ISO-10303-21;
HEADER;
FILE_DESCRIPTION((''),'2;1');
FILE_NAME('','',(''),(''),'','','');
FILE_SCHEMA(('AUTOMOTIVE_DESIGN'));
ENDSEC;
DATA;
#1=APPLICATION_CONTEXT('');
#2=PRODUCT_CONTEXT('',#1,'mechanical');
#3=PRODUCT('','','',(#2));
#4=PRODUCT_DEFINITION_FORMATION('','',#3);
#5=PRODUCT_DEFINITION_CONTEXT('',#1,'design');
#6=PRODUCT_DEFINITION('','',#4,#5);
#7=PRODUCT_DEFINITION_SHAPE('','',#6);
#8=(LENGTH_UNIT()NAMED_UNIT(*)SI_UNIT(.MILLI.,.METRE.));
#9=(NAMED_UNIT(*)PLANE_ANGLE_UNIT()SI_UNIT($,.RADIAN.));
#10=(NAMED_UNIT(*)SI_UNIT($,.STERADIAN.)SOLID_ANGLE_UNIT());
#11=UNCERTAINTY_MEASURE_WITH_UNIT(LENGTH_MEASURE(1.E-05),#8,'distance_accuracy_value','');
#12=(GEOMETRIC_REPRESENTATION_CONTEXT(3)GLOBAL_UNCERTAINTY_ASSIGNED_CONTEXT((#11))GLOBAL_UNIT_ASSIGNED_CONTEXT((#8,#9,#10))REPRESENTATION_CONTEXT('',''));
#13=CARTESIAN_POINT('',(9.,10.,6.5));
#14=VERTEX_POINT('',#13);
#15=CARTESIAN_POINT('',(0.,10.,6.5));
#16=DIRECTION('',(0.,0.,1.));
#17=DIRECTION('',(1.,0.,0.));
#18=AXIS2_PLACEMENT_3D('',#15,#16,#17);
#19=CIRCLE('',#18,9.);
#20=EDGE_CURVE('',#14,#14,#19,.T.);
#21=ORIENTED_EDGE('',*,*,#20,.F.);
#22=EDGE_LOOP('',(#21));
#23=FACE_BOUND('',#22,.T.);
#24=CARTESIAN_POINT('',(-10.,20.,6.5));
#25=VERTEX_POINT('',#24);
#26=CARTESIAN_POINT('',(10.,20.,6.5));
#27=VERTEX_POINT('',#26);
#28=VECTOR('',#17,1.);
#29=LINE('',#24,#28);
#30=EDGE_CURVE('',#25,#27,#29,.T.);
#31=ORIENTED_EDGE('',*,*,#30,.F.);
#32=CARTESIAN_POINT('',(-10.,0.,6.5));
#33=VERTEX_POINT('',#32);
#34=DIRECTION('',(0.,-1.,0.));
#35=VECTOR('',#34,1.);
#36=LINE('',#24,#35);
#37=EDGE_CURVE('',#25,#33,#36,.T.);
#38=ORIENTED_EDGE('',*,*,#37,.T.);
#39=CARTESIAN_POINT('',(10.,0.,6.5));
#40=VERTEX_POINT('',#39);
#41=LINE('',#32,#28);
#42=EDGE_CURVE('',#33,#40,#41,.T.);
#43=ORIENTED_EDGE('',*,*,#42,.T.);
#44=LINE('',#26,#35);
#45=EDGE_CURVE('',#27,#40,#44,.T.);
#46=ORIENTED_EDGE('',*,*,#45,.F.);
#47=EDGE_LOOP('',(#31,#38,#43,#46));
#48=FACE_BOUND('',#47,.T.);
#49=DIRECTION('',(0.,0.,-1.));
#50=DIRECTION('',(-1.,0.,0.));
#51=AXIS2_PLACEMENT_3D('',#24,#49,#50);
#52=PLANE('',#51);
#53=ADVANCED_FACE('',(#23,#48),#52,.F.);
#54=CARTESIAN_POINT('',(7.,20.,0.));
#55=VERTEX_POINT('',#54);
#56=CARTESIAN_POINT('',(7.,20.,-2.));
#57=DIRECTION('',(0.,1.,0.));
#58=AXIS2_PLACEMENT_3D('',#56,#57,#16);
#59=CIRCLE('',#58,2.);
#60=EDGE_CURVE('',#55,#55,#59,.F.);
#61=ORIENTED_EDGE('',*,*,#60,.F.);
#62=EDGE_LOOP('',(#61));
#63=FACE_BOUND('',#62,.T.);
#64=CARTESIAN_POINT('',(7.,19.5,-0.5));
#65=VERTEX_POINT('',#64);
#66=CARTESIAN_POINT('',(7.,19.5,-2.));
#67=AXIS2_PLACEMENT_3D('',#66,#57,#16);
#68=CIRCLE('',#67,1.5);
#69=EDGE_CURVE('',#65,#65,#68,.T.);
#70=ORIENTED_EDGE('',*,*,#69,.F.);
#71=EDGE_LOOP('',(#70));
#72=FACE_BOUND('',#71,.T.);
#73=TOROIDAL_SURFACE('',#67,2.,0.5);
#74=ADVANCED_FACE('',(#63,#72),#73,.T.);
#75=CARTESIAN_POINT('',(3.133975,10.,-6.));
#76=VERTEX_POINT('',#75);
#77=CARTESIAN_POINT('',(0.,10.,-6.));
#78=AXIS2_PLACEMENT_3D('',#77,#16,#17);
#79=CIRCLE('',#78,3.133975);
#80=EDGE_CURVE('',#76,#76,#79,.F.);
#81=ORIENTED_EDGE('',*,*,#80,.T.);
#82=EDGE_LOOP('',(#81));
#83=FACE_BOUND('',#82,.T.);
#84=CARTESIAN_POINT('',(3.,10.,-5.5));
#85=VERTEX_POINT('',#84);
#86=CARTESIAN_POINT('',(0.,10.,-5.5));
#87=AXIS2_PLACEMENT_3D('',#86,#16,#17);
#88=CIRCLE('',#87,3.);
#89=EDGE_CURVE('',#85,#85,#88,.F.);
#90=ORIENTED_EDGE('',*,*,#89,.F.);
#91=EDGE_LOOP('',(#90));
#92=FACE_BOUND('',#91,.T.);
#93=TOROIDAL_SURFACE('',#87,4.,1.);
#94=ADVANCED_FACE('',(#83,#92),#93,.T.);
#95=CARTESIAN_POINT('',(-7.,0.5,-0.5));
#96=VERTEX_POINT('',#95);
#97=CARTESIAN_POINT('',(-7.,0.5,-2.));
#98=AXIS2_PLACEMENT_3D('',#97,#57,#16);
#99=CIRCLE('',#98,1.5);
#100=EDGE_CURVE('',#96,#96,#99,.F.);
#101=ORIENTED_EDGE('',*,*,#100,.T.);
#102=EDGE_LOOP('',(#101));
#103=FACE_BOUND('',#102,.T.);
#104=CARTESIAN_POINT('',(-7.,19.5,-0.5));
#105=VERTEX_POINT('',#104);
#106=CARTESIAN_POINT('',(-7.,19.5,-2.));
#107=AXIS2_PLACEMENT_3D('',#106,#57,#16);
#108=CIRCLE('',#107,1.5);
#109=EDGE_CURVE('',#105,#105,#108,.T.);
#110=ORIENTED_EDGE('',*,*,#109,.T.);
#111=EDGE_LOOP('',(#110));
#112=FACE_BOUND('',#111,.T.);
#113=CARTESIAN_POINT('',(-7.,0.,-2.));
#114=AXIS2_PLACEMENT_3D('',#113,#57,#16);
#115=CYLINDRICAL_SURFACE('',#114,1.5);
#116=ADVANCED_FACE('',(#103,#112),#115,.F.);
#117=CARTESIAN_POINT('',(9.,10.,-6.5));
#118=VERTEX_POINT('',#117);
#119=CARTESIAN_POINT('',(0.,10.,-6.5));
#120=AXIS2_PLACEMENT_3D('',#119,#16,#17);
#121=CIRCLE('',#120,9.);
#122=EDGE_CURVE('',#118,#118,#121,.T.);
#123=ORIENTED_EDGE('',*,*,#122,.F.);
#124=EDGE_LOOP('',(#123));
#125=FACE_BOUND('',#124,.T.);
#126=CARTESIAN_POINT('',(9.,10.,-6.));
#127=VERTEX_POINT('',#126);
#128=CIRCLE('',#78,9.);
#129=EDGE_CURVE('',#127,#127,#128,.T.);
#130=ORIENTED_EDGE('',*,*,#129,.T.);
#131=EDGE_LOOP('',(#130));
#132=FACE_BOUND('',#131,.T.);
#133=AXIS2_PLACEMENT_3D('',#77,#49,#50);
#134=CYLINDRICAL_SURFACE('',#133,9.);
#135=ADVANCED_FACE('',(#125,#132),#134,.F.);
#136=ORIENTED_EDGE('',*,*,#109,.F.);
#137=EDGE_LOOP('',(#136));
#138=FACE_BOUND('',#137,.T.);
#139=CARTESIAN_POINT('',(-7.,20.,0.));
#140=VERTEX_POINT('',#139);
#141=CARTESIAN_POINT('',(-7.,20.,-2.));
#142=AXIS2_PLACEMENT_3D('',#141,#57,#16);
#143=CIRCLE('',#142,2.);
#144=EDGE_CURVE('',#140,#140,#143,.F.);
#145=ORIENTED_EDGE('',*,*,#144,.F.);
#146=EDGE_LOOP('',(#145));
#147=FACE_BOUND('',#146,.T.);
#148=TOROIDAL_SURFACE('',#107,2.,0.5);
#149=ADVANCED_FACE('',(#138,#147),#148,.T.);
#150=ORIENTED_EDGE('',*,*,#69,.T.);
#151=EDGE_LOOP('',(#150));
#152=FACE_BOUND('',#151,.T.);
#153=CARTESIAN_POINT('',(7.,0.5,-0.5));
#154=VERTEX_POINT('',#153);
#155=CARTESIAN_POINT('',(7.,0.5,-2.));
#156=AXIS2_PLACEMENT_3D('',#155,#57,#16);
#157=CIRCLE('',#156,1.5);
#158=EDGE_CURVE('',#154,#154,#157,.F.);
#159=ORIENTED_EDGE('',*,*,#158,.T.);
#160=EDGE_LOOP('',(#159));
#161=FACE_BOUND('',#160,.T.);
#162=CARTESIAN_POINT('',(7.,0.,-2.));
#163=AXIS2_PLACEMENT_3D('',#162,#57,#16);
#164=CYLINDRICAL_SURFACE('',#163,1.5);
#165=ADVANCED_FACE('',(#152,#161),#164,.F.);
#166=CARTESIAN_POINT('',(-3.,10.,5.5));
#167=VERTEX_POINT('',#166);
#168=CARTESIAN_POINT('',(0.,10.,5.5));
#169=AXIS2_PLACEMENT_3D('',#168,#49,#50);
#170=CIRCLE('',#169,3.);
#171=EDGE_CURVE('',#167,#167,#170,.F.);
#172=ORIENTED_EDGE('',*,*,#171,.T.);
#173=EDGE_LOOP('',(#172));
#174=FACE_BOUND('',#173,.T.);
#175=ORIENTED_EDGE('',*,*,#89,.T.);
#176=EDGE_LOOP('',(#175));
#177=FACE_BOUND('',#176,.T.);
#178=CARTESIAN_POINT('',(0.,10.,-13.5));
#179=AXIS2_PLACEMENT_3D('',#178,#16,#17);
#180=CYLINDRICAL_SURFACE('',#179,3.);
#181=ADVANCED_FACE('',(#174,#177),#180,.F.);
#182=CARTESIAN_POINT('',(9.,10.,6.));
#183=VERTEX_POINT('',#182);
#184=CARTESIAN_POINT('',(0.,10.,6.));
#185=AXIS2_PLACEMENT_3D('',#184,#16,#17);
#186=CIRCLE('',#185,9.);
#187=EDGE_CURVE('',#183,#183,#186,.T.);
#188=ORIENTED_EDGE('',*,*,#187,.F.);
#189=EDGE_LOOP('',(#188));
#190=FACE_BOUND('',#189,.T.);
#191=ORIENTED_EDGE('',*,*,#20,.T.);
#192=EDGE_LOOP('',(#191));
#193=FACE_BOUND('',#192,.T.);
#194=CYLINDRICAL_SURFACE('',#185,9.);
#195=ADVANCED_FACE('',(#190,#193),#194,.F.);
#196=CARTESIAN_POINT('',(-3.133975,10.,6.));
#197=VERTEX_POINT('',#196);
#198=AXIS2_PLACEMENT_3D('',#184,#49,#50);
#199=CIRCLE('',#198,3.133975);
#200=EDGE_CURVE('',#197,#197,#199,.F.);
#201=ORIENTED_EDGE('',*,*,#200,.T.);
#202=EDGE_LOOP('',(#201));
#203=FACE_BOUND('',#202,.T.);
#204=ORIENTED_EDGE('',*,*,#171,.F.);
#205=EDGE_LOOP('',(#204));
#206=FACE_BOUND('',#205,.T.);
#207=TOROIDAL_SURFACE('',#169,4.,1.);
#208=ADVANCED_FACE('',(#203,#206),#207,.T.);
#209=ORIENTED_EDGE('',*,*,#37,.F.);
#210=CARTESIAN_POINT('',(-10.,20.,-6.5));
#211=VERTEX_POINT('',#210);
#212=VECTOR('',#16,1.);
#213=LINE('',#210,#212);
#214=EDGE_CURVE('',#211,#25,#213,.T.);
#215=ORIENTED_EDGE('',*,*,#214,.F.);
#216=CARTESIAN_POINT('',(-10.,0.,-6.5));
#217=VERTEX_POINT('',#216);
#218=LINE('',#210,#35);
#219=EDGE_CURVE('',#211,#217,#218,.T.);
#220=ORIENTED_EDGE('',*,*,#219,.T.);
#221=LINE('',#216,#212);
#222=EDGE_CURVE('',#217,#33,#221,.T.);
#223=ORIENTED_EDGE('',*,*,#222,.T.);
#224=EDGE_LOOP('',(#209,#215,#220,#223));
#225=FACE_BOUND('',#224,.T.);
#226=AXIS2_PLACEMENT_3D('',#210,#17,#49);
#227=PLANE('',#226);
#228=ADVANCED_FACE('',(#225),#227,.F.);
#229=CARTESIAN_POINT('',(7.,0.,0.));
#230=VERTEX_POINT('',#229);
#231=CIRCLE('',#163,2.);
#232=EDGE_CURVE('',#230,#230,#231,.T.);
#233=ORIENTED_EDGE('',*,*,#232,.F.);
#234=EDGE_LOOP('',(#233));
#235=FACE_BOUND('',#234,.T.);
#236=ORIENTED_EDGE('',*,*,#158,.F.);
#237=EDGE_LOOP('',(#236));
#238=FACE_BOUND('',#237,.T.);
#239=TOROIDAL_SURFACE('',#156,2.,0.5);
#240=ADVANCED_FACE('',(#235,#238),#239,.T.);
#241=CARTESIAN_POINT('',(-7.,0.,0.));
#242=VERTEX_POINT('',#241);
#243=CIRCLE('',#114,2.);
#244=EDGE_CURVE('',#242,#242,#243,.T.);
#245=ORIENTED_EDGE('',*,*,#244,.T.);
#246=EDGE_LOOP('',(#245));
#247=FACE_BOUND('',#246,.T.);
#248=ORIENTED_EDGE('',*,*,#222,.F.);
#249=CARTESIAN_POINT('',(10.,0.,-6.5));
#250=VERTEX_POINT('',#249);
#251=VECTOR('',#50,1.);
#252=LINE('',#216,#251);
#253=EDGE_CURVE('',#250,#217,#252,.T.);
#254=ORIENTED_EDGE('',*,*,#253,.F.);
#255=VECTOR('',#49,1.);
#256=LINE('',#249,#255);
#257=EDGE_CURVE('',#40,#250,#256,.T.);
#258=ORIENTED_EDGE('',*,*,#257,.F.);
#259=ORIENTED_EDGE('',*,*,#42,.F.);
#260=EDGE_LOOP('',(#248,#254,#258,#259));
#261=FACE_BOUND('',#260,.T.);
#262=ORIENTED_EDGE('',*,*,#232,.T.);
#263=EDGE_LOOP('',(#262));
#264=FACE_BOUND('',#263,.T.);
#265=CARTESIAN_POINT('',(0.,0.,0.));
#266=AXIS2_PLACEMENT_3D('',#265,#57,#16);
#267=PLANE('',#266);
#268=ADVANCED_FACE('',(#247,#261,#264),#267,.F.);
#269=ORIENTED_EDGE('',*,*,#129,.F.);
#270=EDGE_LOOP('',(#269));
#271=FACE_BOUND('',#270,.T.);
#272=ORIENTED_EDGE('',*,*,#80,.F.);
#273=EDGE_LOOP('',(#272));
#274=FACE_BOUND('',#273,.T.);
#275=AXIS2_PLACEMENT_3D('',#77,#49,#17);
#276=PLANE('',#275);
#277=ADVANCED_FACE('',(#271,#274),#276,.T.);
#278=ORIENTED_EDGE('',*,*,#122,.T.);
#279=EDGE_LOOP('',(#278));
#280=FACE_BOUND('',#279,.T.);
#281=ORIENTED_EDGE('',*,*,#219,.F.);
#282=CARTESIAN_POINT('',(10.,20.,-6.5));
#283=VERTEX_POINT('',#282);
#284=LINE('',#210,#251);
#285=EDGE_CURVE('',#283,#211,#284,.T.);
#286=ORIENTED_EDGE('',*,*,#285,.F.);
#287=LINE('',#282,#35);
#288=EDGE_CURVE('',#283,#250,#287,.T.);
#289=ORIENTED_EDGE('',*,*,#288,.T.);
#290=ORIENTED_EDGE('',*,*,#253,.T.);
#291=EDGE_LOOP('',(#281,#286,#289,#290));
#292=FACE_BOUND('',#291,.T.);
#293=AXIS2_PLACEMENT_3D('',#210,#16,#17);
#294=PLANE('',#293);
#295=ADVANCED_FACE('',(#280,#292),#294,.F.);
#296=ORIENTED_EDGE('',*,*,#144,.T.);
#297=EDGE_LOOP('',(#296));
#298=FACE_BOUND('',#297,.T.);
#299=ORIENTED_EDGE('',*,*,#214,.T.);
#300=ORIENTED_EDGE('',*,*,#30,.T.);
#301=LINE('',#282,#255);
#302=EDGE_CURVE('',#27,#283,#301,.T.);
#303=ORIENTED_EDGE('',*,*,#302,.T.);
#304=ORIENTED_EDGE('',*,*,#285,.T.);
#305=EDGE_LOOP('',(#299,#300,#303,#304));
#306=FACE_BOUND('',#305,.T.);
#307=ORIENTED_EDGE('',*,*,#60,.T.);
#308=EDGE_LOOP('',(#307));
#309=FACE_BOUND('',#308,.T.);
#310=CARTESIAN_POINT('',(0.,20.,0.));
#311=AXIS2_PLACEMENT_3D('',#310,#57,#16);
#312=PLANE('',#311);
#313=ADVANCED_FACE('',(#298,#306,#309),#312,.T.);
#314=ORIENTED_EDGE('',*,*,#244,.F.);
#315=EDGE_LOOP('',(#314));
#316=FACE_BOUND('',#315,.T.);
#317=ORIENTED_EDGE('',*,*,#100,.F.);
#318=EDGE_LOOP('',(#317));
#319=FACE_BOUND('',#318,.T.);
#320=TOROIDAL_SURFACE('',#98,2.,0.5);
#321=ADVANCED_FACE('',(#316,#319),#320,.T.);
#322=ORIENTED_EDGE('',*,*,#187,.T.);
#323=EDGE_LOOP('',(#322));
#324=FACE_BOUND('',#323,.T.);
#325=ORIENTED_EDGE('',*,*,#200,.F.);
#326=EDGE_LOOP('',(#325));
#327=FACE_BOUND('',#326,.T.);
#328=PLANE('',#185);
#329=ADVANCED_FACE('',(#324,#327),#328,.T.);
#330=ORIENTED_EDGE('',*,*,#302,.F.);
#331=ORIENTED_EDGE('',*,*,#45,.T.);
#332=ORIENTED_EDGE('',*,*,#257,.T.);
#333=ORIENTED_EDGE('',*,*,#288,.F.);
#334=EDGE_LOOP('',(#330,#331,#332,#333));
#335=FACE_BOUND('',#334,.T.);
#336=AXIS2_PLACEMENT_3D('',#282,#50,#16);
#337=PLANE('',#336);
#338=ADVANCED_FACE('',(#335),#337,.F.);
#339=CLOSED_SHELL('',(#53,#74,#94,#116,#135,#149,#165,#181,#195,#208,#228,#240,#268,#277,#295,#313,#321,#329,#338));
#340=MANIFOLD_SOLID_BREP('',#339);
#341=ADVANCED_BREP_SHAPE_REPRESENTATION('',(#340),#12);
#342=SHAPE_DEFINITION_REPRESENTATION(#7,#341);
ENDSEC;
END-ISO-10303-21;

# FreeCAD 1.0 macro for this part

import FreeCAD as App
import Part
import Sketcher

V = App.Vector
Q = App.Units.Quantity


def edges_at(feature, points):
    """Names of the edges that pass closest to the given points."""
    edges = feature.Shape.Edges
    near = lambda p: min(range(len(edges)), key=lambda i: edges[i].distToShape(Part.Vertex(*p))[0])
    return sorted({f"Edge{near(p) + 1}" for p in points})

doc = App.newDocument("Part")
body = doc.addObject("PartDesign::Body", "Body")

# Sketch on XZ plane
sketch1 = body.newObject("Sketcher::SketchObject", "Sketch")
sketch1.AttachmentSupport = (doc.getObject("XZ_Plane"), [""])
sketch1.MapMode = "FlatFace"
sketch1.addGeometry([
    Part.LineSegment(V(-10, -6.5, 0), V(-10, 6.5, 0)),
    Part.LineSegment(V(-10, 6.5, 0), V(10, 6.5, 0)),
    Part.LineSegment(V(10, 6.5, 0), V(10, -6.5, 0)),
    Part.LineSegment(V(10, -6.5, 0), V(-10, -6.5, 0)),
], False)
sketch1.addConstraint([
    Sketcher.Constraint("Coincident", 0, 2, 1, 1),
    Sketcher.Constraint("Coincident", 1, 2, 2, 1),
    Sketcher.Constraint("Coincident", 2, 2, 3, 1),
    Sketcher.Constraint("Coincident", 3, 2, 0, 1),
    Sketcher.Constraint("Vertical", 0),
    Sketcher.Constraint("Horizontal", 1),
    Sketcher.Constraint("Vertical", 2),
    Sketcher.Constraint("Horizontal", 3),
    Sketcher.Constraint("Symmetric", 0, 2, 2, 2, -1, 1),
    Sketcher.Constraint("DistanceX", 1, 1, 1, 2, Q("20 mm")),
    Sketcher.Constraint("DistanceY", 0, 1, 0, 2, Q("13 mm")),
])
pad1 = body.newObject("PartDesign::Pad", "Pad")
pad1.Profile = sketch1
pad1.Length = 20
pad1.Reversed = True

# Sketch on XY plane
sketch2 = body.newObject("Sketcher::SketchObject", "Sketch001")
sketch2.AttachmentSupport = (doc.getObject("XY_Plane"), [""])
sketch2.MapMode = "FlatFace"
sketch2.AttachmentOffset = App.Placement(V(0, 0, 6.5), App.Rotation())
sketch2.addGeometry(Part.Circle(V(0, 10, 0), V(0, 0, 1), 3), False)
sketch2.addConstraint([
    Sketcher.Constraint("PointOnObject", 0, 3, -2),
    Sketcher.Constraint("Diameter", 0, Q("6 mm")),
    Sketcher.Constraint("DistanceY", -1, 1, 0, 3, Q("10 mm")),
])
pocket1 = body.newObject("PartDesign::Pocket", "Pocket")
pocket1.Profile = sketch2
pocket1.Length = 20

# Sketch on XZ plane
sketch3 = body.newObject("Sketcher::SketchObject", "Sketch002")
sketch3.AttachmentSupport = (doc.getObject("XZ_Plane"), [""])
sketch3.MapMode = "FlatFace"
sketch3.AttachmentOffset = App.Placement(V(0, 0, -20), App.Rotation())
sketch3.addGeometry([
    Part.Circle(V(-7, -2, 0), V(0, 0, 1), 1.5),
    Part.Circle(V(7, -2, 0), V(0, 0, 1), 1.5),
], False)
sketch3.addConstraint([
    Sketcher.Constraint("Equal", 0, 1),
    Sketcher.Constraint("Symmetric", 0, 3, 1, 3, -2),
    Sketcher.Constraint("Diameter", 0, Q("3 mm")),
    Sketcher.Constraint("DistanceX", 0, 3, -1, 1, Q("7 mm")),
    Sketcher.Constraint("DistanceY", 0, 3, -1, 1, Q("2 mm")),
])
pocket2 = body.newObject("PartDesign::Pocket", "Pocket001")
pocket2.Profile = sketch3
pocket2.Length = 20
pocket2.Reversed = True
doc.recompute()

fillet = body.newObject("PartDesign::Fillet", "Fillet")
fillet.Base = (pocket2, edges_at(pocket2, [(-3, 10, 6.5)]))
fillet.Radius = 1
doc.recompute()

fillet2 = body.newObject("PartDesign::Fillet", "Fillet001")
fillet2.Base = (fillet, edges_at(fillet, [(-8.5, 20, -2)]))
fillet2.Radius = 0.5
doc.recompute()

fillet3 = body.newObject("PartDesign::Fillet", "Fillet002")
fillet3.Base = (fillet2, edges_at(fillet2, [(5.5, 20, -2)]))
fillet3.Radius = 0.5
doc.recompute()

fillet4 = body.newObject("PartDesign::Fillet", "Fillet003")
fillet4.Base = (fillet3, edges_at(fillet3, [(-8.5, 0, -2)]))
fillet4.Radius = 0.5
doc.recompute()

fillet5 = body.newObject("PartDesign::Fillet", "Fillet004")
fillet5.Base = (fillet4, edges_at(fillet4, [(5.5, 0, -2)]))
fillet5.Radius = 0.5
doc.recompute()

fillet6 = body.newObject("PartDesign::Fillet", "Fillet005")
fillet6.Base = (fillet5, edges_at(fillet5, [(-3, 10, -6.5)]))
fillet6.Radius = 1

# Sketch on XY plane
sketch4 = body.newObject("Sketcher::SketchObject", "Sketch003")
sketch4.AttachmentSupport = (doc.getObject("XY_Plane"), [""])
sketch4.MapMode = "FlatFace"
sketch4.AttachmentOffset = App.Placement(V(0, 0, 6.5), App.Rotation())
sketch4.addGeometry([
    Part.Circle(V(0, 10, 0), V(0, 0, 1), 9),
    Part.Circle(V(0, 10, 0), V(0, 0, 1), 3),
], False)
sketch4.addConstraint([
    Sketcher.Constraint("Coincident", 1, 3, 0, 3),
    Sketcher.Constraint("PointOnObject", 0, 3, -2),
    Sketcher.Constraint("Diameter", 0, Q("18 mm")),
    Sketcher.Constraint("Diameter", 1, Q("6 mm")),
    Sketcher.Constraint("DistanceY", -1, 1, 0, 3, Q("10 mm")),
])
pocket3 = body.newObject("PartDesign::Pocket", "Pocket002")
pocket3.Profile = sketch4
pocket3.Length = 0.5
doc.recompute()

mirrored = body.newObject("PartDesign::Mirrored", "Mirrored")
mirrored.Originals = [pocket3]
mirrored.MirrorPlane = (doc.getObject("XY_Plane"), [""])
body.Tip = mirrored

doc.recompute()
